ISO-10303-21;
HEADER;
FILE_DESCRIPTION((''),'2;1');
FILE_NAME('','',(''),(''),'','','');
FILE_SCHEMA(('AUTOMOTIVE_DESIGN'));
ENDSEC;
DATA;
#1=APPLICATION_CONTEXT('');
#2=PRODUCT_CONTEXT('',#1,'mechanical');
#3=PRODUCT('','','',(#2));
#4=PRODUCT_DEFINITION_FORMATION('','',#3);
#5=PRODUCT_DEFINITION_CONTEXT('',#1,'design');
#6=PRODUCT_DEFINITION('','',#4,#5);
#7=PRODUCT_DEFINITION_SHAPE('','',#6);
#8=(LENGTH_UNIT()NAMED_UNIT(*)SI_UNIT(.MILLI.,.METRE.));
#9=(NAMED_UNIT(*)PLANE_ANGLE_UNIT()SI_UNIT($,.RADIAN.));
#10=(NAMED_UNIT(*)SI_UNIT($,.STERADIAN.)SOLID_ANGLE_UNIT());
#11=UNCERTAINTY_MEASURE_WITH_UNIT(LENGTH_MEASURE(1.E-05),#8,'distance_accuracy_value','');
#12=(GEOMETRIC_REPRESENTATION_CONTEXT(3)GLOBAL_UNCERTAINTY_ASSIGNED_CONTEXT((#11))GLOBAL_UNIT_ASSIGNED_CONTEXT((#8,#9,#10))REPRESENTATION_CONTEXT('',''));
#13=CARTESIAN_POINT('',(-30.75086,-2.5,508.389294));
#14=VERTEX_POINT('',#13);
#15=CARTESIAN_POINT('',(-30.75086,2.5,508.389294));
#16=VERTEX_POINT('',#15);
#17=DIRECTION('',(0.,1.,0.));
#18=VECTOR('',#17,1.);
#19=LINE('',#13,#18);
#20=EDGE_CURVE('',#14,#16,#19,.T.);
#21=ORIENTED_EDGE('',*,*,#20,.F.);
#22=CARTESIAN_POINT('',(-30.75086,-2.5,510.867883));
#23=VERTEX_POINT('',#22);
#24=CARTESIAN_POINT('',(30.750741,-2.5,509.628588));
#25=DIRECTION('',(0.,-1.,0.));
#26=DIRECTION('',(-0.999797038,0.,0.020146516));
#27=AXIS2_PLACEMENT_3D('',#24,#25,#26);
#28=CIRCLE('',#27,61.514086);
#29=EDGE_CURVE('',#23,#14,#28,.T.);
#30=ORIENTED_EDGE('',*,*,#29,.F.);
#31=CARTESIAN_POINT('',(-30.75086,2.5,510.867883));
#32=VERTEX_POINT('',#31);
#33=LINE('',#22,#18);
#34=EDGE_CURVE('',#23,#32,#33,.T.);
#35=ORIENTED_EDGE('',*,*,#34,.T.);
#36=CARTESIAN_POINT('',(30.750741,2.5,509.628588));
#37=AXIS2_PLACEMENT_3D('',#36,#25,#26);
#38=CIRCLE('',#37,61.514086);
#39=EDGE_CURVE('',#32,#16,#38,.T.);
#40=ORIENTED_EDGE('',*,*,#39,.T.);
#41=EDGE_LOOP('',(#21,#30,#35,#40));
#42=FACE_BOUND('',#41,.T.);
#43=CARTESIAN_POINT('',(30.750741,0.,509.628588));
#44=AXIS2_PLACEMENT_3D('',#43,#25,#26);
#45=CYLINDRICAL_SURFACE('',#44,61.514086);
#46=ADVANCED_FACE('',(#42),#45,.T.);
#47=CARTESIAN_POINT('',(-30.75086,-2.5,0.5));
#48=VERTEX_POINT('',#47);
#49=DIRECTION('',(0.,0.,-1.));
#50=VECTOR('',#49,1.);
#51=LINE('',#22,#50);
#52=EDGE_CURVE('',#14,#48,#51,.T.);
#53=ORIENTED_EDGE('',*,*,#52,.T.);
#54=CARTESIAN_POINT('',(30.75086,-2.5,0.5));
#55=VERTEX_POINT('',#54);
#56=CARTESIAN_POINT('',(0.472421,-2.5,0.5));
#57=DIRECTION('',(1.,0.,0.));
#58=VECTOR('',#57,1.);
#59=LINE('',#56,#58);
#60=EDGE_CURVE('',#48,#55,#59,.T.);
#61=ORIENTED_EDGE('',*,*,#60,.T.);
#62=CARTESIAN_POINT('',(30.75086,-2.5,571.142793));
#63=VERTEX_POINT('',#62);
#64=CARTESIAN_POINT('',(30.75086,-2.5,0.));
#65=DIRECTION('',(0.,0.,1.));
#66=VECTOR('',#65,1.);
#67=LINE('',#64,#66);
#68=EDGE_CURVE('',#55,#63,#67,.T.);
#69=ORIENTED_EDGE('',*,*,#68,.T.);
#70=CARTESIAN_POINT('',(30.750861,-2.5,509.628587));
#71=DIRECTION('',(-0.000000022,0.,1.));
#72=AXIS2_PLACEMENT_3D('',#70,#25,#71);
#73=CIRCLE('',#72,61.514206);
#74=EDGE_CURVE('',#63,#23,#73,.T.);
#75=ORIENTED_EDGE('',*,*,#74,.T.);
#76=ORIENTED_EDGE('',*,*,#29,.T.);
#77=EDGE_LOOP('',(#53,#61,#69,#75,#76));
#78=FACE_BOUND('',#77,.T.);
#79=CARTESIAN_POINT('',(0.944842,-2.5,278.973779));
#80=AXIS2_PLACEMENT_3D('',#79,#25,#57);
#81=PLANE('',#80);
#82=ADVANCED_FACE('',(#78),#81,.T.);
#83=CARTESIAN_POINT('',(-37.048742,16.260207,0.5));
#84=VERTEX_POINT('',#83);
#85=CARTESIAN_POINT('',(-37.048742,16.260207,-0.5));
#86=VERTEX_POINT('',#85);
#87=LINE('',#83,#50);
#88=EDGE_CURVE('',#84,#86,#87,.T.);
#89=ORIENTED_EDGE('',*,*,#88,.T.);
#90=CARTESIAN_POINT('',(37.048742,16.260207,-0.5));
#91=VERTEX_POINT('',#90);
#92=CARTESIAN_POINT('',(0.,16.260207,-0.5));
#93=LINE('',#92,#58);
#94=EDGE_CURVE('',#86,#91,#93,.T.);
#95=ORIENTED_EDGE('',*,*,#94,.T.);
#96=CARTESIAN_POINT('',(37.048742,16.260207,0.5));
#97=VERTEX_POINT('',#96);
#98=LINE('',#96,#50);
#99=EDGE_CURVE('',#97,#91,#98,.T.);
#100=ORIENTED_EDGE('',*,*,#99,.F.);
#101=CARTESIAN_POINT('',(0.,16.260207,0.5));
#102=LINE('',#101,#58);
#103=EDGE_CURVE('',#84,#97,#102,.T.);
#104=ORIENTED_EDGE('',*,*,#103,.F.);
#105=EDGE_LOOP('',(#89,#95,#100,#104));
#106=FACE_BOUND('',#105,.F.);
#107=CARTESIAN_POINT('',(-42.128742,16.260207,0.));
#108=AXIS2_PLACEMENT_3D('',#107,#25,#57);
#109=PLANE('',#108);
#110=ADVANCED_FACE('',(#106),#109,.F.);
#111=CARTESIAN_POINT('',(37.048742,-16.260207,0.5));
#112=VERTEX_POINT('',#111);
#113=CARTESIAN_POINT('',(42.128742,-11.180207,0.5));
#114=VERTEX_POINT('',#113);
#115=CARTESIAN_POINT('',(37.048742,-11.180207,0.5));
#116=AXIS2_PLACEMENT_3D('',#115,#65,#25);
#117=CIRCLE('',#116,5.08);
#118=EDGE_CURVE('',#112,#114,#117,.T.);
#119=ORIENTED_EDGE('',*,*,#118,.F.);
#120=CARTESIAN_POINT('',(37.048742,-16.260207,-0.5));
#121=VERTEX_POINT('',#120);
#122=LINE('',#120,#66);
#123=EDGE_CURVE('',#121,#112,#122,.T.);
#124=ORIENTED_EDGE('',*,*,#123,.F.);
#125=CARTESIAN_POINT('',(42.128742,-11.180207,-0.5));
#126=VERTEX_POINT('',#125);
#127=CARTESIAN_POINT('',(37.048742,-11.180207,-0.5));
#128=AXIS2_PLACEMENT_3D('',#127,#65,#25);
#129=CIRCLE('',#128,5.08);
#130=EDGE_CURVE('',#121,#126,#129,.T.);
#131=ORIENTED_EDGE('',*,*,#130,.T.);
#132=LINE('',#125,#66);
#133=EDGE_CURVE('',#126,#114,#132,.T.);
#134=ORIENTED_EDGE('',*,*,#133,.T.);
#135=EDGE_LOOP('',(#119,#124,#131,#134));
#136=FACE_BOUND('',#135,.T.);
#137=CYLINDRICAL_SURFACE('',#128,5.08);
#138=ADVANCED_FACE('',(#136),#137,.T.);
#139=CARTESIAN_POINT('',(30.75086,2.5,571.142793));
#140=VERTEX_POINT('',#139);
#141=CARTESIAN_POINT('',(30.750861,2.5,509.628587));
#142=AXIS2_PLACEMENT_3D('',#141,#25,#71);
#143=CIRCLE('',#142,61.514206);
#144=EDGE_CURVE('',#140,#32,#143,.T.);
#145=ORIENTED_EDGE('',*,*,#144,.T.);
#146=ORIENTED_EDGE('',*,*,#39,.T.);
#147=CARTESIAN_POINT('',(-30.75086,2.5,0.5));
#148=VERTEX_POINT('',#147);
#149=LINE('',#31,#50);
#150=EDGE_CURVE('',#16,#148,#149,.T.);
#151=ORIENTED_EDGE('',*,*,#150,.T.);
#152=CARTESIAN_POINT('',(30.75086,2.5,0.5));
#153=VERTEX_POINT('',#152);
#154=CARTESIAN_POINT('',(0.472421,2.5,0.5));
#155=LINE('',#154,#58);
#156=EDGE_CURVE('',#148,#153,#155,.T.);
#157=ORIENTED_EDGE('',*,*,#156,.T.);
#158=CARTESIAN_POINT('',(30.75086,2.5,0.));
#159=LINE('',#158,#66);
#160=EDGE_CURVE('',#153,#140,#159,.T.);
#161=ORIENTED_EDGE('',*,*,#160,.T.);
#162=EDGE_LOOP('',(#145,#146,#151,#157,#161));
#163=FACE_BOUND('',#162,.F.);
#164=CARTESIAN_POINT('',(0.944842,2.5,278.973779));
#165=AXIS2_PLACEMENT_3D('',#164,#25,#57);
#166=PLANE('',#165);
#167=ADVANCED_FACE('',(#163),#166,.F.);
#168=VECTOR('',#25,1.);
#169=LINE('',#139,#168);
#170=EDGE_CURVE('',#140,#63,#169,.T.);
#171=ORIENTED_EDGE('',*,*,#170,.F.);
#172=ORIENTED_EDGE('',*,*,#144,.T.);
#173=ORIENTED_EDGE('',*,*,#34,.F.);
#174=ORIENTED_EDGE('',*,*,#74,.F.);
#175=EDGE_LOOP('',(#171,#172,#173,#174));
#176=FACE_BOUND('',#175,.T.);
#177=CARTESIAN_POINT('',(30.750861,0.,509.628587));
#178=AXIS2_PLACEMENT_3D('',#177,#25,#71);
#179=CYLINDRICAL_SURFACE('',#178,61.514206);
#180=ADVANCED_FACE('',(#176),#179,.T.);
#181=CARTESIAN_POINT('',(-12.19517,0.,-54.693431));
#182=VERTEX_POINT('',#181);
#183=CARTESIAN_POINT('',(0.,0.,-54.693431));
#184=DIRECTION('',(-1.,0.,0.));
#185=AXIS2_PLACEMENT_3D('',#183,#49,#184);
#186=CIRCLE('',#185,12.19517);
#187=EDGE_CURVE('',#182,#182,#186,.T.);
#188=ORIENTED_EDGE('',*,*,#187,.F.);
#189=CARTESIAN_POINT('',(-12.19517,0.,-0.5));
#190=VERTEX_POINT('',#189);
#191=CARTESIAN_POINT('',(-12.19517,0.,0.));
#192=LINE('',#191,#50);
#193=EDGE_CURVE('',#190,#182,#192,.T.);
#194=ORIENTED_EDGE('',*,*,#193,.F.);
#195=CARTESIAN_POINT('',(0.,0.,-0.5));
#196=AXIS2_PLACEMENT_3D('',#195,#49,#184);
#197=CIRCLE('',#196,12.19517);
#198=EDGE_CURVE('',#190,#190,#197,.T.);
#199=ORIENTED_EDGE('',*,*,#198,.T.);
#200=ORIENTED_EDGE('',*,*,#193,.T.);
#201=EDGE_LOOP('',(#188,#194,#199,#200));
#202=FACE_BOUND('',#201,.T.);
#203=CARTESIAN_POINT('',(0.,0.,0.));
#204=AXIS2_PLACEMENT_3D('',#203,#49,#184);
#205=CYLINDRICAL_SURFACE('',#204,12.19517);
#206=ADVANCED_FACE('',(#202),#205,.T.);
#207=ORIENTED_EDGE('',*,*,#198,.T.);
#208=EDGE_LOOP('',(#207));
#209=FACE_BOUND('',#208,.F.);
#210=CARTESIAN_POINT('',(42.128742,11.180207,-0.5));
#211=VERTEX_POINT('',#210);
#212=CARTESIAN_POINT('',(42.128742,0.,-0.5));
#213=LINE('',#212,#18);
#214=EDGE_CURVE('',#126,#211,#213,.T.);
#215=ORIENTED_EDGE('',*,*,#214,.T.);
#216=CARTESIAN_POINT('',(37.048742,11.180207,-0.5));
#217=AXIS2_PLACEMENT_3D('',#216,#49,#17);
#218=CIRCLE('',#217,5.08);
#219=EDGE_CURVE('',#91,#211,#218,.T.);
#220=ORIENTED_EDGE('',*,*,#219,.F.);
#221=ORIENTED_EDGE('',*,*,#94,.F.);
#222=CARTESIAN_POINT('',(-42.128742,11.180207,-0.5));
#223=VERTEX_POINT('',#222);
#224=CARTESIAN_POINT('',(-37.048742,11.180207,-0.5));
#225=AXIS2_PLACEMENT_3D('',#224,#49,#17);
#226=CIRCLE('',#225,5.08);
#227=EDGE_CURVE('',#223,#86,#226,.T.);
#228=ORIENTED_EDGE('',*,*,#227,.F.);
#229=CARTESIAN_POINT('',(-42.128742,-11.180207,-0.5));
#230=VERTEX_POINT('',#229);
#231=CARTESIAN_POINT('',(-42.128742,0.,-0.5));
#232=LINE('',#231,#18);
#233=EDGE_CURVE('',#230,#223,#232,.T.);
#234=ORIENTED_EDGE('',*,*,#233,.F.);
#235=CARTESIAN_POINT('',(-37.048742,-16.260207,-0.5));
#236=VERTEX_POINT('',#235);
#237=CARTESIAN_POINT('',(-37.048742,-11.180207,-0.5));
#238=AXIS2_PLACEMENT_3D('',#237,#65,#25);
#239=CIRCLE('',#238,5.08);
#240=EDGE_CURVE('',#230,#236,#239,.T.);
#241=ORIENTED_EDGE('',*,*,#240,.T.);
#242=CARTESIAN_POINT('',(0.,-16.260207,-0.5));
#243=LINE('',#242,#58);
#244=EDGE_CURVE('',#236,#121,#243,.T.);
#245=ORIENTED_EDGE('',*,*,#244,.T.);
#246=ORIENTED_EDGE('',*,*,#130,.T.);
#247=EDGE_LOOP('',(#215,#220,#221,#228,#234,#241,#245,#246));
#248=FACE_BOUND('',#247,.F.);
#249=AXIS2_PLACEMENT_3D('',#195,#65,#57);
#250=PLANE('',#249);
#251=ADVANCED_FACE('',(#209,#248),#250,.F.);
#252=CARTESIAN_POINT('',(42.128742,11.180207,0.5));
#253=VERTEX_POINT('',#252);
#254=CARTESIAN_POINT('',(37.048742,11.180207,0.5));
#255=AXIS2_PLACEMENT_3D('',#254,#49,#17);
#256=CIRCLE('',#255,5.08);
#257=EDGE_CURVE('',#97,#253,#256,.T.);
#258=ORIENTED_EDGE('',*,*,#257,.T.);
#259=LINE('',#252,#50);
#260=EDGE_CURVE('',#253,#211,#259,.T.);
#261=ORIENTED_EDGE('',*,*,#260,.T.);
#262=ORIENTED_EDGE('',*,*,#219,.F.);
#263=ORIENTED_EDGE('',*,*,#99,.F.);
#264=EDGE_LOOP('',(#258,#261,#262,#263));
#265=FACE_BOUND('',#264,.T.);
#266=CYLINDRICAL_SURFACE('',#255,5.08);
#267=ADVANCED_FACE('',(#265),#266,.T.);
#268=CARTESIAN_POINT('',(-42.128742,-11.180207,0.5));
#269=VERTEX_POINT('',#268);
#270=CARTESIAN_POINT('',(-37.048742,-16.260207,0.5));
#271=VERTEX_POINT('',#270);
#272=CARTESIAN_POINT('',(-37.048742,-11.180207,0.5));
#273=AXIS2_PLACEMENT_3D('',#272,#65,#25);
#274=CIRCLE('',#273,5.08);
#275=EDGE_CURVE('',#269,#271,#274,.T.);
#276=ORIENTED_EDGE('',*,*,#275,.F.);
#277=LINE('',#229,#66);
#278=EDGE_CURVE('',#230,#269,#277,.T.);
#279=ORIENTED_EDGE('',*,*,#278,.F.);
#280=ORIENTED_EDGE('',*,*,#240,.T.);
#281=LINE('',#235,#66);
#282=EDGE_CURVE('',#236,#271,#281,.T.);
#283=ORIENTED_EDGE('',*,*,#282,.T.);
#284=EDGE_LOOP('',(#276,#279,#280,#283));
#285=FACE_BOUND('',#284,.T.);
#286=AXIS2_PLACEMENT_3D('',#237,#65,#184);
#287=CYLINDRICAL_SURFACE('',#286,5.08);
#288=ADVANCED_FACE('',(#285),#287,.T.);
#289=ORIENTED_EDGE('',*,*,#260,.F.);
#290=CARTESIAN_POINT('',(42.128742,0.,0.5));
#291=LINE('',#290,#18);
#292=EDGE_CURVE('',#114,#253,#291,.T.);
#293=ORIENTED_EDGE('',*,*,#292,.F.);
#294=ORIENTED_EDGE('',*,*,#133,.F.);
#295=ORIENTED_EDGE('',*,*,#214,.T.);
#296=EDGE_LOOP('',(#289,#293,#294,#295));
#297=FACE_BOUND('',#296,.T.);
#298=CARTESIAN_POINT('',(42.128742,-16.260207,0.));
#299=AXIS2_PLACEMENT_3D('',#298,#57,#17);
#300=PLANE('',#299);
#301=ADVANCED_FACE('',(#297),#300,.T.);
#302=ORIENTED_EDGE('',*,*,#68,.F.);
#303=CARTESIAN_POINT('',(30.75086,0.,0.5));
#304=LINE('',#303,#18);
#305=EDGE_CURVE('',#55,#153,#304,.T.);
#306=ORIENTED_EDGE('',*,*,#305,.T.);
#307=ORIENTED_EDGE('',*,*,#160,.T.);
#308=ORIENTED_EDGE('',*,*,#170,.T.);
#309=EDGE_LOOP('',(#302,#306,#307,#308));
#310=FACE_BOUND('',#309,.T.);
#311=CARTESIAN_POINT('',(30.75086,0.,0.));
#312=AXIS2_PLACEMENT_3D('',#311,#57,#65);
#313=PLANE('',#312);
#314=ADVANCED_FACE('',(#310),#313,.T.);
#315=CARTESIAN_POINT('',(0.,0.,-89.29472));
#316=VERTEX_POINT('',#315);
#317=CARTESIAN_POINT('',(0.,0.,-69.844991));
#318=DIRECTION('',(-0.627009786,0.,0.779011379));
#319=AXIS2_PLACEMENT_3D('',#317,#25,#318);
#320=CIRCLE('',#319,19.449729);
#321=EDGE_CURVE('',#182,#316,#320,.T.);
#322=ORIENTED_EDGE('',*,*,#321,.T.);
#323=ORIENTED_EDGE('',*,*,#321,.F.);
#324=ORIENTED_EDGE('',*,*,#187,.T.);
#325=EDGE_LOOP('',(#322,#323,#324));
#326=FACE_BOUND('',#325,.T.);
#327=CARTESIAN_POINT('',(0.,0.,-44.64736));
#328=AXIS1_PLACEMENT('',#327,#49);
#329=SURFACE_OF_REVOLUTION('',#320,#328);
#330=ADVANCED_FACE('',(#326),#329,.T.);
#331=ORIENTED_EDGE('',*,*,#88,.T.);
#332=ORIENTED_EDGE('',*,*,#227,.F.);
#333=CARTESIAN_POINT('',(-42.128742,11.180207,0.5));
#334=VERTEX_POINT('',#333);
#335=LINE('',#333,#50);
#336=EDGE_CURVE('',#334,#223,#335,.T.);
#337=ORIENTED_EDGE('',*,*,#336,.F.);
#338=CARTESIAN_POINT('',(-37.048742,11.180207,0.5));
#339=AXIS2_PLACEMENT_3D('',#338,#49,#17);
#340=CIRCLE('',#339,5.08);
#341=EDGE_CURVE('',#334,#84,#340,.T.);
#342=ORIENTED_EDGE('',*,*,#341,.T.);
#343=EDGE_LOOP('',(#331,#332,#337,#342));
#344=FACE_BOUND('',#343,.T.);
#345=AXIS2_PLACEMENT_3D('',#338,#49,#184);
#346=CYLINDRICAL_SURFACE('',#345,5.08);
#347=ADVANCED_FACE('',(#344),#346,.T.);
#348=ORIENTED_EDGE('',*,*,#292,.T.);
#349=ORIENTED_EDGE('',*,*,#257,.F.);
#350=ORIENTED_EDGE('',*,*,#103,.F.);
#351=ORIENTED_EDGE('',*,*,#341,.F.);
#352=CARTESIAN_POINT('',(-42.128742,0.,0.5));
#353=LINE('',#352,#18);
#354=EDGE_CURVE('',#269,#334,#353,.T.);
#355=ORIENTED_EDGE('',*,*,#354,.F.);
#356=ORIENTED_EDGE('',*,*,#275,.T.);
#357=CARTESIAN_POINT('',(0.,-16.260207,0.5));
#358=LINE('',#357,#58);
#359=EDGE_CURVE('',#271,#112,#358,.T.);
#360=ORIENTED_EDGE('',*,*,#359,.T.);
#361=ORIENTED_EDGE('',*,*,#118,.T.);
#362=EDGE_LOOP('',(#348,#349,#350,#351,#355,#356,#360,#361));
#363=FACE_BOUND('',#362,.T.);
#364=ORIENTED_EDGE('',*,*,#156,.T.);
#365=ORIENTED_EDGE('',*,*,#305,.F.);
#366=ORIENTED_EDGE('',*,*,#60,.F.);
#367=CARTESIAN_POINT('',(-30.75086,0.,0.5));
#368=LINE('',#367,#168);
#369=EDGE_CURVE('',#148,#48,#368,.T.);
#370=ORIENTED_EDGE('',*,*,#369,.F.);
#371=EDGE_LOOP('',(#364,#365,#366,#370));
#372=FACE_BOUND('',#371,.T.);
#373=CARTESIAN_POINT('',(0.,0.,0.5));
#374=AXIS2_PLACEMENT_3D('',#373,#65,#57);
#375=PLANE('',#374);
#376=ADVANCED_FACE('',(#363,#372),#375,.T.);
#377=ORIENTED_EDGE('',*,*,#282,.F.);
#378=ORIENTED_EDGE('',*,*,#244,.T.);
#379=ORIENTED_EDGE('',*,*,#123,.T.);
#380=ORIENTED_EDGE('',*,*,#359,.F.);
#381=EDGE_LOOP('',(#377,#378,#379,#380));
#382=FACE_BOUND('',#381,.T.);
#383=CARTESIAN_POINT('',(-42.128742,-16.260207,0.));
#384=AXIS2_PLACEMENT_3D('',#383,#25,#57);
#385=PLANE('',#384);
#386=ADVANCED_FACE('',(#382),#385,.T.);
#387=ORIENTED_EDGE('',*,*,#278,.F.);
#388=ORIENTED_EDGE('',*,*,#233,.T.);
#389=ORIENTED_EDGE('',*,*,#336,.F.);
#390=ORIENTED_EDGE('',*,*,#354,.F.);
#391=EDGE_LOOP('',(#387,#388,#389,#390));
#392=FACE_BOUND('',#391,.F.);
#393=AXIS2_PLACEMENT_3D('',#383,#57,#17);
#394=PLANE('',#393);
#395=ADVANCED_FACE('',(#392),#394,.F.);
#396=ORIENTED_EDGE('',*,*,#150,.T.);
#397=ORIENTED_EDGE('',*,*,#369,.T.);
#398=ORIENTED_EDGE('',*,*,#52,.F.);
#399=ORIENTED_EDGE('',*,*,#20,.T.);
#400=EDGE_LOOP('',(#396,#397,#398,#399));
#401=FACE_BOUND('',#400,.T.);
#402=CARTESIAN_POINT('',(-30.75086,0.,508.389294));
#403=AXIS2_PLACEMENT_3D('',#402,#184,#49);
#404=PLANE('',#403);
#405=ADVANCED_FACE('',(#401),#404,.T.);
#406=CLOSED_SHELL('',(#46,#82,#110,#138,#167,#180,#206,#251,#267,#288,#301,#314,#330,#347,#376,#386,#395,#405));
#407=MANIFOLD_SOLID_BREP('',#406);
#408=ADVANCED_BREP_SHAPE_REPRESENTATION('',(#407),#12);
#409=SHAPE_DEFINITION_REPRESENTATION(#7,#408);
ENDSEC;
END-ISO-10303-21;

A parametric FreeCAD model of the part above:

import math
import FreeCAD as App
import Part
import Sketcher
from FreeCAD import Vector


def edges_at(feature, points):
    """Names of the edges that pass closest to the given points."""
    edges = feature.Shape.Edges
    near = lambda p: min(range(len(edges)), key=lambda i: edges[i].distToShape(Part.Vertex(*p))[0])
    return sorted({f"Edge{near(p) + 1}" for p in points})

doc = App.newDocument("Part")
body = doc.addObject("PartDesign::Body", "Body")

# Sketch on XY plane
sketch1 = body.newObject("Sketcher::SketchObject", "Sketch")
sketch1.AttachmentSupport = (doc.getObject("XY_Plane"), [""])
sketch1.MapMode = "FlatFace"
sketch1.addGeometry([
    Part.LineSegment(Vector(-42, 16, 0), Vector(-42, -16, 0)),
    Part.LineSegment(Vector(-42, -16, 0), Vector(42, -16, 0)),
    Part.LineSegment(Vector(42, -16, 0), Vector(42, 16, 0)),
    Part.LineSegment(Vector(42, 16, 0), Vector(-42, 16, 0)),
], False)
sketch1.addConstraint([
    Sketcher.Constraint("Coincident", 0, 2, 1, 1),
    Sketcher.Constraint("Coincident", 1, 2, 2, 1),
    Sketcher.Constraint("Coincident", 2, 2, 3, 1),
    Sketcher.Constraint("Coincident", 3, 2, 0, 1),
    Sketcher.Constraint("Vertical", 0),
    Sketcher.Constraint("Horizontal", 1),
    Sketcher.Constraint("Vertical", 2),
    Sketcher.Constraint("Horizontal", 3),
    Sketcher.Constraint("Symmetric", 0, 2, 2, 2, -1, 1),
    Sketcher.Constraint("DistanceX", 1, 1, 1, 2, 84.257484),
    Sketcher.Constraint("DistanceY", 0, 2, 0, 1, 32.520414),
])
pad1 = body.newObject("PartDesign::Pad", "Pad")
pad1.Profile = sketch1
pad1.Length = 1
pad1.Midplane = True

# Sketch on XZ plane
sketch2 = body.newObject("Sketcher::SketchObject", "Sketch001")
sketch2.AttachmentSupport = (doc.getObject("XZ_Plane"), [""])
sketch2.MapMode = "FlatFace"
sketch2.addGeometry([
    Part.LineSegment(Vector(0, 0, 0), Vector(-12, 0, 0)),
    Part.LineSegment(Vector(-12, 0, 0), Vector(-12, -55, 0)),
    Part.ArcOfCircle(Part.Circle(Vector(0, -70, 0), Vector(0, 0, 1), 19), math.radians(129), math.radians(270)),
    Part.LineSegment(Vector(0, -89, 0), Vector(0, 0, 0)),
], False)
sketch2.addConstraint([
    Sketcher.Constraint("Coincident", 0, 2, 1, 1),
    Sketcher.Constraint("Coincident", 1, 2, 2, 1),
    Sketcher.Constraint("Coincident", 2, 2, 3, 1),
    Sketcher.Constraint("Coincident", 3, 2, 0, 1),
    Sketcher.Constraint("Horizontal", 0),
    Sketcher.Constraint("Vertical", 1),
    Sketcher.Constraint("Vertical", 3),
    Sketcher.Constraint("Coincident", 3, 2, -1, 1),
    Sketcher.Constraint("PointOnObject", 2, 3, -2),
    Sketcher.Constraint("Radius", 2, 19.449729),
    Sketcher.Constraint("DistanceX", 0, 2, 0, 1, 12.19517),
    Sketcher.Constraint("DistanceY", 1, 2, 1, 1, 54.693431),
])
revolution = body.newObject("PartDesign::Revolution", "Revolution")
revolution.Profile = sketch2
revolution.ReferenceAxis = (sketch2, ["V_Axis"])
revolution.Angle = 360

# Sketch on XZ plane
sketch3 = body.newObject("Sketcher::SketchObject", "Sketch002")
sketch3.AttachmentSupport = (doc.getObject("XZ_Plane"), [""])
sketch3.MapMode = "FlatFace"
sketch3.addGeometry([
    Part.LineSegment(Vector(-30.75086, 0, 0), Vector(30.75086, 0, 0)),  # 0
    Part.LineSegment(Vector(30.75086, 0, 0), Vector(30.75086, 571.142793, 0)),  # 1
    Part.ArcOfCircle(Part.Circle(Vector(30.750861, 509.628587, 0), Vector(0, 0, 1), 61.514206), math.radians(90.000001), math.radians(178.845612)),  # 2
    Part.ArcOfCircle(Part.Circle(Vector(30.750741, 509.628588, 0), Vector(0, 0, 1), 61.514086), math.radians(178.845612), math.radians(181.154388)),  # 3
    Part.LineSegment(Vector(-30.75086, 508.389294, 0), Vector(-30.75086, 0, 0)),  # 4
], False)
sketch3.addConstraint([
    Sketcher.Constraint("Coincident", 0, 2, 1, 1),
    Sketcher.Constraint("Coincident", 1, 2, 2, 1),
    Sketcher.Constraint("Coincident", 2, 2, 3, 1),
    Sketcher.Constraint("Coincident", 3, 2, 4, 1),
    Sketcher.Constraint("Coincident", 4, 2, 0, 1),
    Sketcher.Constraint("Horizontal", 0),
    Sketcher.Constraint("Vertical", 1),
    Sketcher.Constraint("Vertical", 4),
    Sketcher.Constraint("PointOnObject", 0, 2, -1),
    Sketcher.Constraint("Radius", 2, 61.514206),
    Sketcher.Constraint("Radius", 3, 61.514086),
    Sketcher.Constraint("DistanceX", 0, 1, 0, 2, 61.50172),
    Sketcher.Constraint("DistanceX", 2, 2, 3, 3, 61.501601),
    Sketcher.Constraint("DistanceX", 3, 2, 3, 3, 61.501601),
    Sketcher.Constraint("DistanceY", 3, 2, 1, 2, 62.753499),
    Sketcher.Constraint("DistanceY", 1, 1, 1, 2, 571.142793),
    Sketcher.Constraint("DistanceX", -1, 1, 2, 3, 30.750861),
])
pad2 = body.newObject("PartDesign::Pad", "Pad001")
pad2.Profile = sketch3
pad2.Length = 5
pad2.Midplane = True
doc.recompute()

fillet = body.newObject("PartDesign::Fillet", "Fillet")
fillet.Base = (pad2, edges_at(pad2, [
    (-42.129, -16.26, 0),
    (-42.129, 16.26, 0),
    (42.129, 16.26, 0),
    (42.129, -16.26, 0),
]))
fillet.Radius = 5.08

doc.recompute()
